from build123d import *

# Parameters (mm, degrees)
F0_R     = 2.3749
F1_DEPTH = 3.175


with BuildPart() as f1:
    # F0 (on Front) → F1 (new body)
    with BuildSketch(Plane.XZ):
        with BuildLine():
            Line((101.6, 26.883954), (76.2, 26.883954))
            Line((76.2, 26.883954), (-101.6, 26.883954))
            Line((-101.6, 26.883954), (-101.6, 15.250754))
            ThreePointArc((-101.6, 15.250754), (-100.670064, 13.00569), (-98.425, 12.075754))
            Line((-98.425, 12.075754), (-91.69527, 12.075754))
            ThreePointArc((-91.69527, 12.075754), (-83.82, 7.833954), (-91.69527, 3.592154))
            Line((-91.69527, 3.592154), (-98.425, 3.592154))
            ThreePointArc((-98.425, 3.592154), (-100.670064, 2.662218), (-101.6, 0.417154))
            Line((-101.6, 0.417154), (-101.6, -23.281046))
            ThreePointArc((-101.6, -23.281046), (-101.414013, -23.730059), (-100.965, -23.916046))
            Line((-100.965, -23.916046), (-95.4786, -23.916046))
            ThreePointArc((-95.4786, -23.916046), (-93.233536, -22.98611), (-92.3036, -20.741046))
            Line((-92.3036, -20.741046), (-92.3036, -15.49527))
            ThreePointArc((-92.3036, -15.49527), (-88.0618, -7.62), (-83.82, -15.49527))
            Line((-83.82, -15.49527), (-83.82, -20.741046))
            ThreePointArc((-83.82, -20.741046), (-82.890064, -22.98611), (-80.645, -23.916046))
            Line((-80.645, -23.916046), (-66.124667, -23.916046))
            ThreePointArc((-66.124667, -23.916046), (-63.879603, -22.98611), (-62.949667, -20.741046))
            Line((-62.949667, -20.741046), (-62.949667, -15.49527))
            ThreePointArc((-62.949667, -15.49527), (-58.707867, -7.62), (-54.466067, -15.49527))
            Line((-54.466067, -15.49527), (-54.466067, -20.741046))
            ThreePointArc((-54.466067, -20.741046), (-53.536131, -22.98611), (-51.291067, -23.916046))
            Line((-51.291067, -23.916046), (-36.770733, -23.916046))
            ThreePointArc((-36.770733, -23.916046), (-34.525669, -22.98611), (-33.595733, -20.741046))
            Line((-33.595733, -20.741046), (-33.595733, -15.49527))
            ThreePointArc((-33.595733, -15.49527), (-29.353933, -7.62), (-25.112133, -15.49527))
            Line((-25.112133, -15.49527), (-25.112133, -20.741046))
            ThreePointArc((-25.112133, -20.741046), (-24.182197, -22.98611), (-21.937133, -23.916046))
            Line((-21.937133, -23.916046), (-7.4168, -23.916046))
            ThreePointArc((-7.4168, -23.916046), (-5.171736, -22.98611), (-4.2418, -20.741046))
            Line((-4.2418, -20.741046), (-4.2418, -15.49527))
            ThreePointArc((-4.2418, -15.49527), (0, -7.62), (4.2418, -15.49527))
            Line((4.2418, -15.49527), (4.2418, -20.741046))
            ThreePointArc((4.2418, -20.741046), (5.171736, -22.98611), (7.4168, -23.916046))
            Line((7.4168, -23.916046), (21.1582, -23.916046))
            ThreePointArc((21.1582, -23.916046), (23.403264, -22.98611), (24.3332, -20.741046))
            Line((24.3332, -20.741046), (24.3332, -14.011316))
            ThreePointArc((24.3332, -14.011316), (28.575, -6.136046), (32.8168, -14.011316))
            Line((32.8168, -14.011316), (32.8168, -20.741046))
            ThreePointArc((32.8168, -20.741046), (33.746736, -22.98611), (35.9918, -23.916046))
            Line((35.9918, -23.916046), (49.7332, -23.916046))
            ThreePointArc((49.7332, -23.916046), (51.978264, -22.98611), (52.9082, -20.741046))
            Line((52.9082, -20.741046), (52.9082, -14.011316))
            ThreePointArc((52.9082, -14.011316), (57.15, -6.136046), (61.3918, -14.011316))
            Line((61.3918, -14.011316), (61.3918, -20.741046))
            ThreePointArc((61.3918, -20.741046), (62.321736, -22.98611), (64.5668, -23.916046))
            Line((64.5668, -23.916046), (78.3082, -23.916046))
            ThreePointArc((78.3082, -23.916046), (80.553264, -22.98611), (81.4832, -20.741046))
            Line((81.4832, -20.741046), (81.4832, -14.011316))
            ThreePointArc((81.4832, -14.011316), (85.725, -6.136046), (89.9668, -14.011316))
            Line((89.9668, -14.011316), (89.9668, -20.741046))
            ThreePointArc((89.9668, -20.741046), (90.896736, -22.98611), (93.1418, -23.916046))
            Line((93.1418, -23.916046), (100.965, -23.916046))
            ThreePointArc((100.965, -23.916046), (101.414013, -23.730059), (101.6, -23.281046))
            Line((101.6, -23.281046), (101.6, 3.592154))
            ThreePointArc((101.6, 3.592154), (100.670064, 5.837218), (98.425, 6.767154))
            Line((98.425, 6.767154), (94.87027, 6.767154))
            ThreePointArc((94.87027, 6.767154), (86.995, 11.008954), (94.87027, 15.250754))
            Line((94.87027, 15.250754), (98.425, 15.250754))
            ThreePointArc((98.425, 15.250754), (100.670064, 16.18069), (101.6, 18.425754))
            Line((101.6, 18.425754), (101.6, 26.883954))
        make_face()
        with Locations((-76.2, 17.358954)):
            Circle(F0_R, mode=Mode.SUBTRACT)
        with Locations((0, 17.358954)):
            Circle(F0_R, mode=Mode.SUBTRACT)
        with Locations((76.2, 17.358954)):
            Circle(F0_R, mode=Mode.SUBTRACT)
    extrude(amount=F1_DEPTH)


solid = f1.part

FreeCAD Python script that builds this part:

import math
import FreeCAD as App
import Part
import Sketcher
Q = App.Units.Quantity

doc = App.newDocument("Part")
body = doc.addObject("PartDesign::Body", "Body")

# Sketch on XZ plane
sketch1 = body.newObject("Sketcher::SketchObject", "Sketch")
sketch1.AttachmentSupport = (doc.getObject("XZ_Plane"), [""])
sketch1.MapMode = "FlatFace"
sketch1.addGeometry(Part.LineSegment(App.Vector(101.6, 26.883954, 0), App.Vector(-101.6, 26.883954, 0)), False)
sketch1.addGeometry(Part.LineSegment(App.Vector(-101.6, 26.883954, 0), App.Vector(-101.6, 15.250754, 0)), False)
sketch1.addGeometry(Part.ArcOfCircle(Part.Circle(App.Vector(-98.425, 15.250754, 0), App.Vector(0, 0, 1), 3.175), math.radians(-179.999998), math.radians(-90.000002)), False)
sketch1.addGeometry(Part.LineSegment(App.Vector(-98.425, 12.075754, 0), App.Vector(-91.69527, 12.075754, 0)), False)
sketch1.addGeometry(Part.ArcOfCircle(Part.Circle(App.Vector(-88.9, 7.833954, 0), App.Vector(0, 0, 1), 5.08), math.radians(-123.384164), math.radians(123.384164)), False)
sketch1.addGeometry(Part.LineSegment(App.Vector(-91.69527, 3.592154, 0), App.Vector(-98.425, 3.592154, 0)), False)
sketch1.addGeometry(Part.ArcOfCircle(Part.Circle(App.Vector(-98.425, 0.417154, 0), App.Vector(0, 0, 1), 3.175), math.radians(90.000002), math.radians(179.999998)), False)
sketch1.addGeometry(Part.LineSegment(App.Vector(-101.6, 0.417154, 0), App.Vector(-101.6, -23.281046, 0)), False)
sketch1.addGeometry(Part.ArcOfCircle(Part.Circle(App.Vector(-100.965001, -23.281047, 0), App.Vector(0, 0, 1), 0.634999), math.radians(179.99994), math.radians(270.00006)), False)
sketch1.addGeometry(Part.LineSegment(App.Vector(-100.965, -23.916046, 0), App.Vector(-95.4786, -23.916046, 0)), False)
sketch1.addGeometry(Part.ArcOfCircle(Part.Circle(App.Vector(-95.4786, -20.741046, 0), App.Vector(0, 0, 1), 3.175), math.radians(-89.999998), math.radians(-0.000002)), False)
sketch1.addGeometry(Part.LineSegment(App.Vector(-92.3036, -20.741046, 0), App.Vector(-92.3036, -15.49527, 0)), False)
sketch1.addGeometry(Part.ArcOfCircle(Part.Circle(App.Vector(-88.0618, -12.7, 0), App.Vector(0, 0, 1), 5.08), math.radians(-33.384164), math.radians(213.384164)), False)
sketch1.addGeometry(Part.LineSegment(App.Vector(-83.82, -15.49527, 0), App.Vector(-83.82, -20.741046, 0)), False)
sketch1.addGeometry(Part.ArcOfCircle(Part.Circle(App.Vector(-80.645, -20.741046, 0), App.Vector(0, 0, 1), 3.175), math.radians(-179.999998), math.radians(-90.000002)), False)
sketch1.addGeometry(Part.LineSegment(App.Vector(-80.645, -23.916046, 0), App.Vector(-66.124667, -23.916046, 0)), False)
sketch1.addGeometry(Part.ArcOfCircle(Part.Circle(App.Vector(-66.124667, -20.741046, 0), App.Vector(0, 0, 1), 3.175), math.radians(-89.999998), math.radians(-0.000002)), False)
sketch1.addGeometry(Part.LineSegment(App.Vector(-62.949667, -20.741046, 0), App.Vector(-62.949667, -15.49527, 0)), False)
sketch1.addGeometry(Part.ArcOfCircle(Part.Circle(App.Vector(-58.707867, -12.7, 0), App.Vector(0, 0, 1), 5.08), math.radians(-33.384164), math.radians(213.384164)), False)
sketch1.addGeometry(Part.LineSegment(App.Vector(-54.466067, -15.49527, 0), App.Vector(-54.466067, -20.741046, 0)), False)
sketch1.addGeometry(Part.ArcOfCircle(Part.Circle(App.Vector(-51.291067, -20.741046, 0), App.Vector(0, 0, 1), 3.175), math.radians(-179.999998), math.radians(-90.000002)), False)
sketch1.addGeometry(Part.LineSegment(App.Vector(-51.291067, -23.916046, 0), App.Vector(-36.770733, -23.916046, 0)), False)
sketch1.addGeometry(Part.ArcOfCircle(Part.Circle(App.Vector(-36.770733, -20.741046, 0), App.Vector(0, 0, 1), 3.175), math.radians(-89.999998), math.radians(-0.000002)), False)
sketch1.addGeometry(Part.LineSegment(App.Vector(-33.595733, -20.741046, 0), App.Vector(-33.595733, -15.49527, 0)), False)
sketch1.addGeometry(Part.ArcOfCircle(Part.Circle(App.Vector(-29.353933, -12.7, 0), App.Vector(0, 0, 1), 5.08), math.radians(-33.384164), math.radians(213.384164)), False)
sketch1.addGeometry(Part.LineSegment(App.Vector(-25.112133, -15.49527, 0), App.Vector(-25.112133, -20.741046, 0)), False)
sketch1.addGeometry(Part.ArcOfCircle(Part.Circle(App.Vector(-21.937133, -20.741046, 0), App.Vector(0, 0, 1), 3.175), math.radians(-179.999998), math.radians(-90.000002)), False)
sketch1.addGeometry(Part.LineSegment(App.Vector(-21.937133, -23.916046, 0), App.Vector(-7.4168, -23.916046, 0)), False)
sketch1.addGeometry(Part.ArcOfCircle(Part.Circle(App.Vector(-7.4168, -20.741046, 0), App.Vector(0, 0, 1), 3.175), math.radians(-89.999998), math.radians(-0.000002)), False)
sketch1.addGeometry(Part.LineSegment(App.Vector(-4.2418, -20.741046, 0), App.Vector(-4.2418, -15.49527, 0)), False)
sketch1.addGeometry(Part.ArcOfCircle(Part.Circle(App.Vector(0, -12.7, 0), App.Vector(0, 0, 1), 5.08), math.radians(-33.384164), math.radians(213.384164)), False)
sketch1.addGeometry(Part.LineSegment(App.Vector(4.2418, -15.49527, 0), App.Vector(4.2418, -20.741046, 0)), False)
sketch1.addGeometry(Part.ArcOfCircle(Part.Circle(App.Vector(7.4168, -20.741046, 0), App.Vector(0, 0, 1), 3.175), math.radians(-179.999998), math.radians(-90.000002)), False)
sketch1.addGeometry(Part.LineSegment(App.Vector(7.4168, -23.916046, 0), App.Vector(21.1582, -23.916046, 0)), False)
sketch1.addGeometry(Part.ArcOfCircle(Part.Circle(App.Vector(21.1582, -20.741046, 0), App.Vector(0, 0, 1), 3.175), math.radians(-89.999998), math.radians(-0.000002)), False)
sketch1.addGeometry(Part.LineSegment(App.Vector(24.3332, -20.741046, 0), App.Vector(24.3332, -14.011316, 0)), False)
sketch1.addGeometry(Part.ArcOfCircle(Part.Circle(App.Vector(28.575, -11.216046, 0), App.Vector(0, 0, 1), 5.08), math.radians(-33.384164), math.radians(213.384164)), False)
sketch1.addGeometry(Part.LineSegment(App.Vector(32.8168, -14.011316, 0), App.Vector(32.8168, -20.741046, 0)), False)
sketch1.addGeometry(Part.ArcOfCircle(Part.Circle(App.Vector(35.9918, -20.741046, 0), App.Vector(0, 0, 1), 3.175), math.radians(-179.999998), math.radians(-90.000002)), False)
sketch1.addGeometry(Part.LineSegment(App.Vector(35.9918, -23.916046, 0), App.Vector(49.7332, -23.916046, 0)), False)
sketch1.addGeometry(Part.ArcOfCircle(Part.Circle(App.Vector(49.7332, -20.741046, 0), App.Vector(0, 0, 1), 3.175), math.radians(-89.999998), math.radians(-0.000002)), False)
sketch1.addGeometry(Part.LineSegment(App.Vector(52.9082, -20.741046, 0), App.Vector(52.9082, -14.011316, 0)), False)
sketch1.addGeometry(Part.ArcOfCircle(Part.Circle(App.Vector(57.15, -11.216046, 0), App.Vector(0, 0, 1), 5.08), math.radians(-33.384164), math.radians(213.384164)), False)
sketch1.addGeometry(Part.LineSegment(App.Vector(61.3918, -14.011316, 0), App.Vector(61.3918, -20.741046, 0)), False)
sketch1.addGeometry(Part.ArcOfCircle(Part.Circle(App.Vector(64.5668, -20.741046, 0), App.Vector(0, 0, 1), 3.175), math.radians(-179.999998), math.radians(-90.000002)), False)
sketch1.addGeometry(Part.LineSegment(App.Vector(64.5668, -23.916046, 0), App.Vector(78.3082, -23.916046, 0)), False)
sketch1.addGeometry(Part.ArcOfCircle(Part.Circle(App.Vector(78.3082, -20.741046, 0), App.Vector(0, 0, 1), 3.175), math.radians(-89.999998), math.radians(-0.000002)), False)
sketch1.addGeometry(Part.LineSegment(App.Vector(81.4832, -20.741046, 0), App.Vector(81.4832, -14.011316, 0)), False)
sketch1.addGeometry(Part.ArcOfCircle(Part.Circle(App.Vector(85.725, -11.216046, 0), App.Vector(0, 0, 1), 5.08), math.radians(-33.384164), math.radians(213.384164)), False)
sketch1.addGeometry(Part.LineSegment(App.Vector(89.9668, -14.011316, 0), App.Vector(89.9668, -20.741046, 0)), False)
sketch1.addGeometry(Part.ArcOfCircle(Part.Circle(App.Vector(93.1418, -20.741046, 0), App.Vector(0, 0, 1), 3.175), math.radians(-179.999998), math.radians(-90.000002)), False)
sketch1.addGeometry(Part.LineSegment(App.Vector(93.1418, -23.916046, 0), App.Vector(100.965, -23.916046, 0)), False)
sketch1.addGeometry(Part.ArcOfCircle(Part.Circle(App.Vector(100.965001, -23.281047, 0), App.Vector(0, 0, 1), 0.634999), math.radians(-90.00006), math.radians(0.00006)), False)
sketch1.addGeometry(Part.LineSegment(App.Vector(101.6, -23.281046, 0), App.Vector(101.6, 3.592154, 0)), False)
sketch1.addGeometry(Part.ArcOfCircle(Part.Circle(App.Vector(98.425, 3.592154, 0), App.Vector(0, 0, 1), 3.175), math.radians(0.000002), math.radians(89.999998)), False)
sketch1.addGeometry(Part.LineSegment(App.Vector(98.425, 6.767154, 0), App.Vector(94.87027, 6.767154, 0)), False)
sketch1.addGeometry(Part.ArcOfCircle(Part.Circle(App.Vector(92.075, 11.008954, 0), App.Vector(0, 0, 1), 5.08), math.radians(56.615836), math.radians(303.384164)), False)
sketch1.addGeometry(Part.LineSegment(App.Vector(94.87027, 15.250754, 0), App.Vector(98.425, 15.250754, 0)), False)
sketch1.addGeometry(Part.ArcOfCircle(Part.Circle(App.Vector(98.425, 18.425754, 0), App.Vector(0, 0, 1), 3.175), math.radians(-89.999998), math.radians(-0.000002)), False)
sketch1.addGeometry(Part.LineSegment(App.Vector(101.6, 18.425754, 0), App.Vector(101.6, 26.883954, 0)), False)
sketch1.addGeometry(Part.Circle(App.Vector(-76.2, 17.358954, 0), App.Vector(0, 0, 1), 2.3749), False)
sketch1.addGeometry(Part.Circle(App.Vector(0, 17.358954, 0), App.Vector(0, 0, 1), 2.3749), False)
sketch1.addGeometry(Part.Circle(App.Vector(76.2, 17.358954, 0), App.Vector(0, 0, 1), 2.3749), False)
sketch1.addConstraint(Sketcher.Constraint("Coincident", 0, 2, 1, 1))
sketch1.addConstraint(Sketcher.Constraint("Tangent", 1, 2, 2, 1))
sketch1.addConstraint(Sketcher.Constraint("Tangent", 2, 2, 3, 1))
sketch1.addConstraint(Sketcher.Constraint("Coincident", 3, 2, 4, 2))
sketch1.addConstraint(Sketcher.Constraint("Coincident", 4, 1, 5, 1))
sketch1.addConstraint(Sketcher.Constraint("Tangent", 5, 2, 6, 1))
sketch1.addConstraint(Sketcher.Constraint("Tangent", 6, 2, 7, 1))
sketch1.addConstraint(Sketcher.Constraint("Tangent", 7, 2, 8, 1))
sketch1.addConstraint(Sketcher.Constraint("Tangent", 8, 2, 9, 1))
sketch1.addConstraint(Sketcher.Constraint("Tangent", 9, 2, 10, 1))
sketch1.addConstraint(Sketcher.Constraint("Tangent", 10, 2, 11, 1))
sketch1.addConstraint(Sketcher.Constraint("Coincident", 11, 2, 12, 2))
sketch1.addConstraint(Sketcher.Constraint("Coincident", 12, 1, 13, 1))
sketch1.addConstraint(Sketcher.Constraint("Tangent", 13, 2, 14, 1))
sketch1.addConstraint(Sketcher.Constraint("Tangent", 14, 2, 15, 1))
sketch1.addConstraint(Sketcher.Constraint("Tangent", 15, 2, 16, 1))
sketch1.addConstraint(Sketcher.Constraint("Tangent", 16, 2, 17, 1))
sketch1.addConstraint(Sketcher.Constraint("Coincident", 17, 2, 18, 2))
sketch1.addConstraint(Sketcher.Constraint("Coincident", 18, 1, 19, 1))
sketch1.addConstraint(Sketcher.Constraint("Tangent", 19, 2, 20, 1))
sketch1.addConstraint(Sketcher.Constraint("Tangent", 20, 2, 21, 1))
sketch1.addConstraint(Sketcher.Constraint("Tangent", 21, 2, 22, 1))
sketch1.addConstraint(Sketcher.Constraint("Tangent", 22, 2, 23, 1))
sketch1.addConstraint(Sketcher.Constraint("Coincident", 23, 2, 24, 2))
sketch1.addConstraint(Sketcher.Constraint("Coincident", 24, 1, 25, 1))
sketch1.addConstraint(Sketcher.Constraint("Tangent", 25, 2, 26, 1))
sketch1.addConstraint(Sketcher.Constraint("Tangent", 26, 2, 27, 1))
sketch1.addConstraint(Sketcher.Constraint("Tangent", 27, 2, 28, 1))
sketch1.addConstraint(Sketcher.Constraint("Tangent", 28, 2, 29, 1))
sketch1.addConstraint(Sketcher.Constraint("Coincident", 29, 2, 30, 2))
sketch1.addConstraint(Sketcher.Constraint("Coincident", 30, 1, 31, 1))
sketch1.addConstraint(Sketcher.Constraint("Tangent", 31, 2, 32, 1))
sketch1.addConstraint(Sketcher.Constraint("Tangent", 32, 2, 33, 1))
sketch1.addConstraint(Sketcher.Constraint("Tangent", 33, 2, 34, 1))
sketch1.addConstraint(Sketcher.Constraint("Tangent", 34, 2, 35, 1))
sketch1.addConstraint(Sketcher.Constraint("Coincident", 35, 2, 36, 2))
sketch1.addConstraint(Sketcher.Constraint("Coincident", 36, 1, 37, 1))
sketch1.addConstraint(Sketcher.Constraint("Tangent", 37, 2, 38, 1))
sketch1.addConstraint(Sketcher.Constraint("Tangent", 38, 2, 39, 1))
sketch1.addConstraint(Sketcher.Constraint("Tangent", 39, 2, 40, 1))
sketch1.addConstraint(Sketcher.Constraint("Tangent", 40, 2, 41, 1))
sketch1.addConstraint(Sketcher.Constraint("Coincident", 41, 2, 42, 2))
sketch1.addConstraint(Sketcher.Constraint("Coincident", 42, 1, 43, 1))
sketch1.addConstraint(Sketcher.Constraint("Tangent", 43, 2, 44, 1))
sketch1.addConstraint(Sketcher.Constraint("Tangent", 44, 2, 45, 1))
sketch1.addConstraint(Sketcher.Constraint("Tangent", 45, 2, 46, 1))
sketch1.addConstraint(Sketcher.Constraint("Tangent", 46, 2, 47, 1))
sketch1.addConstraint(Sketcher.Constraint("Coincident", 47, 2, 48, 2))
sketch1.addConstraint(Sketcher.Constraint("Coincident", 48, 1, 49, 1))
sketch1.addConstraint(Sketcher.Constraint("Tangent", 49, 2, 50, 1))
sketch1.addConstraint(Sketcher.Constraint("Tangent", 50, 2, 51, 1))
sketch1.addConstraint(Sketcher.Constraint("Tangent", 51, 2, 52, 1))
sketch1.addConstraint(Sketcher.Constraint("Tangent", 52, 2, 53, 1))
sketch1.addConstraint(Sketcher.Constraint("Tangent", 53, 2, 54, 1))
sketch1.addConstraint(Sketcher.Constraint("Tangent", 54, 2, 55, 1))
sketch1.addConstraint(Sketcher.Constraint("Coincident", 55, 2, 56, 2))
sketch1.addConstraint(Sketcher.Constraint("Coincident", 56, 1, 57, 1))
sketch1.addConstraint(Sketcher.Constraint("Tangent", 57, 2, 58, 1))
sketch1.addConstraint(Sketcher.Constraint("Tangent", 58, 2, 59, 1))
sketch1.addConstraint(Sketcher.Constraint("Coincident", 59, 2, 0, 1))
sketch1.addConstraint(Sketcher.Constraint("Horizontal", 0))
sketch1.addConstraint(Sketcher.Constraint("Vertical", 1))
sketch1.addConstraint(Sketcher.Constraint("Horizontal", 3))
sketch1.addConstraint(Sketcher.Constraint("Horizontal", 5))
sketch1.addConstraint(Sketcher.Constraint("Vertical", 7))
sketch1.addConstraint(Sketcher.Constraint("Horizontal", 9))
sketch1.addConstraint(Sketcher.Constraint("Vertical", 11))
sketch1.addConstraint(Sketcher.Constraint("Vertical", 13))
sketch1.addConstraint(Sketcher.Constraint("Horizontal", 15))
sketch1.addConstraint(Sketcher.Constraint("Vertical", 17))
sketch1.addConstraint(Sketcher.Constraint("Vertical", 19))
sketch1.addConstraint(Sketcher.Constraint("Horizontal", 21))
sketch1.addConstraint(Sketcher.Constraint("Vertical", 23))
sketch1.addConstraint(Sketcher.Constraint("Vertical", 25))
sketch1.addConstraint(Sketcher.Constraint("Horizontal", 27))
sketch1.addConstraint(Sketcher.Constraint("Vertical", 29))
sketch1.addConstraint(Sketcher.Constraint("Vertical", 31))
sketch1.addConstraint(Sketcher.Constraint("Horizontal", 33))
sketch1.addConstraint(Sketcher.Constraint("Vertical", 35))
sketch1.addConstraint(Sketcher.Constraint("Vertical", 37))
sketch1.addConstraint(Sketcher.Constraint("Horizontal", 39))
sketch1.addConstraint(Sketcher.Constraint("Vertical", 41))
sketch1.addConstraint(Sketcher.Constraint("Vertical", 43))
sketch1.addConstraint(Sketcher.Constraint("Horizontal", 45))
sketch1.addConstraint(Sketcher.Constraint("Vertical", 47))
sketch1.addConstraint(Sketcher.Constraint("Vertical", 49))
sketch1.addConstraint(Sketcher.Constraint("Horizontal", 51))
sketch1.addConstraint(Sketcher.Constraint("Vertical", 53))
sketch1.addConstraint(Sketcher.Constraint("Horizontal", 55))
sketch1.addConstraint(Sketcher.Constraint("Horizontal", 57))
sketch1.addConstraint(Sketcher.Constraint("Vertical", 59))
sketch1.addConstraint(Sketcher.Constraint("Equal", 2, 6))
sketch1.addConstraint(Sketcher.Constraint("Equal", 6, 10))
sketch1.addConstraint(Sketcher.Constraint("Equal", 4, 12))
sketch1.addConstraint(Sketcher.Constraint("Equal", 10, 14))
sketch1.addConstraint(Sketcher.Constraint("Equal", 14, 16))
sketch1.addConstraint(Sketcher.Constraint("Equal", 12, 18))
sketch1.addConstraint(Sketcher.Constraint("Equal", 16, 20))
sketch1.addConstraint(Sketcher.Constraint("Equal", 20, 22))
sketch1.addConstraint(Sketcher.Constraint("Equal", 18, 24))
sketch1.addConstraint(Sketcher.Constraint("Equal", 22, 26))
sketch1.addConstraint(Sketcher.Constraint("Equal", 26, 28))
sketch1.addConstraint(Sketcher.Constraint("Equal", 24, 30))
sketch1.addConstraint(Sketcher.Constraint("Equal", 28, 32))
sketch1.addConstraint(Sketcher.Constraint("Equal", 32, 34))
sketch1.addConstraint(Sketcher.Constraint("Equal", 30, 36))
sketch1.addConstraint(Sketcher.Constraint("Equal", 34, 38))
sketch1.addConstraint(Sketcher.Constraint("Equal", 38, 40))
sketch1.addConstraint(Sketcher.Constraint("Equal", 36, 42))
sketch1.addConstraint(Sketcher.Constraint("Equal", 40, 44))
sketch1.addConstraint(Sketcher.Constraint("Equal", 44, 46))
sketch1.addConstraint(Sketcher.Constraint("Equal", 42, 48))
sketch1.addConstraint(Sketcher.Constraint("Equal", 46, 50))
sketch1.addConstraint(Sketcher.Constraint("Equal", 8, 52))
sketch1.addConstraint(Sketcher.Constraint("Equal", 50, 54))
sketch1.addConstraint(Sketcher.Constraint("Equal", 48, 56))
sketch1.addConstraint(Sketcher.Constraint("Equal", 54, 58))
sketch1.addConstraint(Sketcher.Constraint("Equal", 60, 61))
sketch1.addConstraint(Sketcher.Constraint("Equal", 61, 62))
sketch1.addConstraint(Sketcher.Constraint("Symmetric", 28, 3, 32, 3, -2))
sketch1.addConstraint(Sketcher.Constraint("Symmetric", 8, 3, 52, 3, -2))
sketch1.addConstraint(Sketcher.Constraint("Symmetric", 60, 3, 62, 3, -2))
sketch1.addConstraint(Sketcher.Constraint("PointOnObject", 30, 3, -2))
sketch1.addConstraint(Sketcher.Constraint("PointOnObject", 61, 3, -2))
sketch1.addConstraint(Sketcher.Constraint("Horizontal", 10, 3, 14, 3))
sketch1.addConstraint(Sketcher.Constraint("Horizontal", 12, 3, 18, 3))
sketch1.addConstraint(Sketcher.Constraint("Horizontal", 16, 3, 20, 3))
sketch1.addConstraint(Sketcher.Constraint("Horizontal", 18, 3, 24, 3))
sketch1.addConstraint(Sketcher.Constraint("Horizontal", 22, 3, 26, 3))
sketch1.addConstraint(Sketcher.Constraint("Horizontal", 24, 3, 30, 3))
sketch1.addConstraint(Sketcher.Constraint("Horizontal", 34, 3, 38, 3))
sketch1.addConstraint(Sketcher.Constraint("Horizontal", 36, 3, 42, 3))
sketch1.addConstraint(Sketcher.Constraint("Horizontal", 40, 3, 44, 3))
sketch1.addConstraint(Sketcher.Constraint("Horizontal", 42, 3, 48, 3))
sketch1.addConstraint(Sketcher.Constraint("Horizontal", 60, 3, 61, 3))
sketch1.addConstraint(Sketcher.Constraint("Horizontal", 54, 3, 4, 1))
sketch1.addConstraint(Sketcher.Constraint("Horizontal", 11, 2, 12, 1))
sketch1.addConstraint(Sketcher.Constraint("Horizontal", 12, 1, 17, 2))
sketch1.addConstraint(Sketcher.Constraint("Horizontal", 17, 2, 18, 1))
sketch1.addConstraint(Sketcher.Constraint("Horizontal", 18, 1, 23, 2))
sketch1.addConstraint(Sketcher.Constraint("Horizontal", 23, 2, 24, 1))
sketch1.addConstraint(Sketcher.Constraint("Horizontal", 24, 1, 29, 2))
sketch1.addConstraint(Sketcher.Constraint("Horizontal", 35, 2, 36, 1))
sketch1.addConstraint(Sketcher.Constraint("Horizontal", 36, 1, 41, 2))
sketch1.addConstraint(Sketcher.Constraint("Horizontal", 41, 2, 42, 1))
sketch1.addConstraint(Sketcher.Constraint("Horizontal", 42, 1, 47, 2))
sketch1.addConstraint(Sketcher.Constraint("Horizontal", 47, 2, 48, 1))
sketch1.addConstraint(Sketcher.Constraint("Horizontal", 1, 2, 56, 1))
sketch1.addConstraint(Sketcher.Constraint("Vertical", 2, 3, 6, 3))
sketch1.addConstraint(Sketcher.Constraint("Vertical", 54, 3, 58, 3))
sketch1.addConstraint(Sketcher.Constraint("Vertical", 3, 2, 4, 1))
sketch1.addConstraint(Sketcher.Constraint("Vertical", 55, 2, 56, 1))
sketch1.addConstraint(Sketcher.Constraint("Equal", 15, 21))
sketch1.addConstraint(Sketcher.Constraint("Equal", 21, 27))
sketch1.addConstraint(Sketcher.Constraint("Equal", 33, 39))
sketch1.addConstraint(Sketcher.Constraint("Equal", 39, 45))
sketch1.addConstraint(Sketcher.Constraint("Equal", 5, 35))
sketch1.addConstraint(Sketcher.Constraint("Radius", 4, Q("0.2 in")))
sketch1.addConstraint(Sketcher.Constraint("DistanceX", 0, 2, 0, 1, Q("8 in")))
sketch1.addConstraint(Sketcher.Constraint("Diameter", 60, Q("0.187 in")))
sketch1.addConstraint(Sketcher.Constraint("DistanceX", 60, 3, -1, 1, Q("3 in")))
sketch1.addConstraint(Sketcher.Constraint("Radius", 2, Q("0.125 in")))
sketch1.addConstraint(Sketcher.Constraint("Radius", 8, Q("0.025 in")))
sketch1.addConstraint(Sketcher.Constraint("DistanceX", 4, 3, -1, 1, Q("3.5 in")))
sketch1.addConstraint(Sketcher.Constraint("DistanceY", 12, 3, -1, 1, Q("0.5 in")))
sketch1.addConstraint(Sketcher.Constraint("DistanceX", 12, 1, -1, 1, Q("3.3 in")))
sketch1.addConstraint(Sketcher.Constraint("DistanceX", 9, 1, 9, 2, Q("0.216 in")))
sketch1.addConstraint(Sketcher.Constraint("DistanceX", 33, 1, 33, 2, Q("0.541 in")))
sketch1.addConstraint(Sketcher.Constraint("DistanceX", 51, 1, 51, 2, Q("0.308 in")))
sketch1.addConstraint(Sketcher.Constraint("DistanceY", 1, 2, 1, 1, Q("0.458 in")))
sketch1.addConstraint(Sketcher.Constraint("DistanceY", 7, 2, 7, 1, Q("0.933 in")))
sketch1.addConstraint(Sketcher.Constraint("DistanceX", -1, 1, 56, 3, Q("3.625 in")))
sketch1.addConstraint(Sketcher.Constraint("DistanceX", 3, 1, 3, 2, 6.72973))
sketch1.addConstraint(Sketcher.Constraint("DistanceY", 11, 1, 11, 2, 5.245776))
sketch1.addConstraint(Sketcher.Constraint("DistanceY", -1, 1, 60, 3, 17.358954))
pad1 = body.newObject("PartDesign::Pad", "Pad")
pad1.Profile = sketch1
pad1.Length = Q("0.125 in")

doc.recompute()
